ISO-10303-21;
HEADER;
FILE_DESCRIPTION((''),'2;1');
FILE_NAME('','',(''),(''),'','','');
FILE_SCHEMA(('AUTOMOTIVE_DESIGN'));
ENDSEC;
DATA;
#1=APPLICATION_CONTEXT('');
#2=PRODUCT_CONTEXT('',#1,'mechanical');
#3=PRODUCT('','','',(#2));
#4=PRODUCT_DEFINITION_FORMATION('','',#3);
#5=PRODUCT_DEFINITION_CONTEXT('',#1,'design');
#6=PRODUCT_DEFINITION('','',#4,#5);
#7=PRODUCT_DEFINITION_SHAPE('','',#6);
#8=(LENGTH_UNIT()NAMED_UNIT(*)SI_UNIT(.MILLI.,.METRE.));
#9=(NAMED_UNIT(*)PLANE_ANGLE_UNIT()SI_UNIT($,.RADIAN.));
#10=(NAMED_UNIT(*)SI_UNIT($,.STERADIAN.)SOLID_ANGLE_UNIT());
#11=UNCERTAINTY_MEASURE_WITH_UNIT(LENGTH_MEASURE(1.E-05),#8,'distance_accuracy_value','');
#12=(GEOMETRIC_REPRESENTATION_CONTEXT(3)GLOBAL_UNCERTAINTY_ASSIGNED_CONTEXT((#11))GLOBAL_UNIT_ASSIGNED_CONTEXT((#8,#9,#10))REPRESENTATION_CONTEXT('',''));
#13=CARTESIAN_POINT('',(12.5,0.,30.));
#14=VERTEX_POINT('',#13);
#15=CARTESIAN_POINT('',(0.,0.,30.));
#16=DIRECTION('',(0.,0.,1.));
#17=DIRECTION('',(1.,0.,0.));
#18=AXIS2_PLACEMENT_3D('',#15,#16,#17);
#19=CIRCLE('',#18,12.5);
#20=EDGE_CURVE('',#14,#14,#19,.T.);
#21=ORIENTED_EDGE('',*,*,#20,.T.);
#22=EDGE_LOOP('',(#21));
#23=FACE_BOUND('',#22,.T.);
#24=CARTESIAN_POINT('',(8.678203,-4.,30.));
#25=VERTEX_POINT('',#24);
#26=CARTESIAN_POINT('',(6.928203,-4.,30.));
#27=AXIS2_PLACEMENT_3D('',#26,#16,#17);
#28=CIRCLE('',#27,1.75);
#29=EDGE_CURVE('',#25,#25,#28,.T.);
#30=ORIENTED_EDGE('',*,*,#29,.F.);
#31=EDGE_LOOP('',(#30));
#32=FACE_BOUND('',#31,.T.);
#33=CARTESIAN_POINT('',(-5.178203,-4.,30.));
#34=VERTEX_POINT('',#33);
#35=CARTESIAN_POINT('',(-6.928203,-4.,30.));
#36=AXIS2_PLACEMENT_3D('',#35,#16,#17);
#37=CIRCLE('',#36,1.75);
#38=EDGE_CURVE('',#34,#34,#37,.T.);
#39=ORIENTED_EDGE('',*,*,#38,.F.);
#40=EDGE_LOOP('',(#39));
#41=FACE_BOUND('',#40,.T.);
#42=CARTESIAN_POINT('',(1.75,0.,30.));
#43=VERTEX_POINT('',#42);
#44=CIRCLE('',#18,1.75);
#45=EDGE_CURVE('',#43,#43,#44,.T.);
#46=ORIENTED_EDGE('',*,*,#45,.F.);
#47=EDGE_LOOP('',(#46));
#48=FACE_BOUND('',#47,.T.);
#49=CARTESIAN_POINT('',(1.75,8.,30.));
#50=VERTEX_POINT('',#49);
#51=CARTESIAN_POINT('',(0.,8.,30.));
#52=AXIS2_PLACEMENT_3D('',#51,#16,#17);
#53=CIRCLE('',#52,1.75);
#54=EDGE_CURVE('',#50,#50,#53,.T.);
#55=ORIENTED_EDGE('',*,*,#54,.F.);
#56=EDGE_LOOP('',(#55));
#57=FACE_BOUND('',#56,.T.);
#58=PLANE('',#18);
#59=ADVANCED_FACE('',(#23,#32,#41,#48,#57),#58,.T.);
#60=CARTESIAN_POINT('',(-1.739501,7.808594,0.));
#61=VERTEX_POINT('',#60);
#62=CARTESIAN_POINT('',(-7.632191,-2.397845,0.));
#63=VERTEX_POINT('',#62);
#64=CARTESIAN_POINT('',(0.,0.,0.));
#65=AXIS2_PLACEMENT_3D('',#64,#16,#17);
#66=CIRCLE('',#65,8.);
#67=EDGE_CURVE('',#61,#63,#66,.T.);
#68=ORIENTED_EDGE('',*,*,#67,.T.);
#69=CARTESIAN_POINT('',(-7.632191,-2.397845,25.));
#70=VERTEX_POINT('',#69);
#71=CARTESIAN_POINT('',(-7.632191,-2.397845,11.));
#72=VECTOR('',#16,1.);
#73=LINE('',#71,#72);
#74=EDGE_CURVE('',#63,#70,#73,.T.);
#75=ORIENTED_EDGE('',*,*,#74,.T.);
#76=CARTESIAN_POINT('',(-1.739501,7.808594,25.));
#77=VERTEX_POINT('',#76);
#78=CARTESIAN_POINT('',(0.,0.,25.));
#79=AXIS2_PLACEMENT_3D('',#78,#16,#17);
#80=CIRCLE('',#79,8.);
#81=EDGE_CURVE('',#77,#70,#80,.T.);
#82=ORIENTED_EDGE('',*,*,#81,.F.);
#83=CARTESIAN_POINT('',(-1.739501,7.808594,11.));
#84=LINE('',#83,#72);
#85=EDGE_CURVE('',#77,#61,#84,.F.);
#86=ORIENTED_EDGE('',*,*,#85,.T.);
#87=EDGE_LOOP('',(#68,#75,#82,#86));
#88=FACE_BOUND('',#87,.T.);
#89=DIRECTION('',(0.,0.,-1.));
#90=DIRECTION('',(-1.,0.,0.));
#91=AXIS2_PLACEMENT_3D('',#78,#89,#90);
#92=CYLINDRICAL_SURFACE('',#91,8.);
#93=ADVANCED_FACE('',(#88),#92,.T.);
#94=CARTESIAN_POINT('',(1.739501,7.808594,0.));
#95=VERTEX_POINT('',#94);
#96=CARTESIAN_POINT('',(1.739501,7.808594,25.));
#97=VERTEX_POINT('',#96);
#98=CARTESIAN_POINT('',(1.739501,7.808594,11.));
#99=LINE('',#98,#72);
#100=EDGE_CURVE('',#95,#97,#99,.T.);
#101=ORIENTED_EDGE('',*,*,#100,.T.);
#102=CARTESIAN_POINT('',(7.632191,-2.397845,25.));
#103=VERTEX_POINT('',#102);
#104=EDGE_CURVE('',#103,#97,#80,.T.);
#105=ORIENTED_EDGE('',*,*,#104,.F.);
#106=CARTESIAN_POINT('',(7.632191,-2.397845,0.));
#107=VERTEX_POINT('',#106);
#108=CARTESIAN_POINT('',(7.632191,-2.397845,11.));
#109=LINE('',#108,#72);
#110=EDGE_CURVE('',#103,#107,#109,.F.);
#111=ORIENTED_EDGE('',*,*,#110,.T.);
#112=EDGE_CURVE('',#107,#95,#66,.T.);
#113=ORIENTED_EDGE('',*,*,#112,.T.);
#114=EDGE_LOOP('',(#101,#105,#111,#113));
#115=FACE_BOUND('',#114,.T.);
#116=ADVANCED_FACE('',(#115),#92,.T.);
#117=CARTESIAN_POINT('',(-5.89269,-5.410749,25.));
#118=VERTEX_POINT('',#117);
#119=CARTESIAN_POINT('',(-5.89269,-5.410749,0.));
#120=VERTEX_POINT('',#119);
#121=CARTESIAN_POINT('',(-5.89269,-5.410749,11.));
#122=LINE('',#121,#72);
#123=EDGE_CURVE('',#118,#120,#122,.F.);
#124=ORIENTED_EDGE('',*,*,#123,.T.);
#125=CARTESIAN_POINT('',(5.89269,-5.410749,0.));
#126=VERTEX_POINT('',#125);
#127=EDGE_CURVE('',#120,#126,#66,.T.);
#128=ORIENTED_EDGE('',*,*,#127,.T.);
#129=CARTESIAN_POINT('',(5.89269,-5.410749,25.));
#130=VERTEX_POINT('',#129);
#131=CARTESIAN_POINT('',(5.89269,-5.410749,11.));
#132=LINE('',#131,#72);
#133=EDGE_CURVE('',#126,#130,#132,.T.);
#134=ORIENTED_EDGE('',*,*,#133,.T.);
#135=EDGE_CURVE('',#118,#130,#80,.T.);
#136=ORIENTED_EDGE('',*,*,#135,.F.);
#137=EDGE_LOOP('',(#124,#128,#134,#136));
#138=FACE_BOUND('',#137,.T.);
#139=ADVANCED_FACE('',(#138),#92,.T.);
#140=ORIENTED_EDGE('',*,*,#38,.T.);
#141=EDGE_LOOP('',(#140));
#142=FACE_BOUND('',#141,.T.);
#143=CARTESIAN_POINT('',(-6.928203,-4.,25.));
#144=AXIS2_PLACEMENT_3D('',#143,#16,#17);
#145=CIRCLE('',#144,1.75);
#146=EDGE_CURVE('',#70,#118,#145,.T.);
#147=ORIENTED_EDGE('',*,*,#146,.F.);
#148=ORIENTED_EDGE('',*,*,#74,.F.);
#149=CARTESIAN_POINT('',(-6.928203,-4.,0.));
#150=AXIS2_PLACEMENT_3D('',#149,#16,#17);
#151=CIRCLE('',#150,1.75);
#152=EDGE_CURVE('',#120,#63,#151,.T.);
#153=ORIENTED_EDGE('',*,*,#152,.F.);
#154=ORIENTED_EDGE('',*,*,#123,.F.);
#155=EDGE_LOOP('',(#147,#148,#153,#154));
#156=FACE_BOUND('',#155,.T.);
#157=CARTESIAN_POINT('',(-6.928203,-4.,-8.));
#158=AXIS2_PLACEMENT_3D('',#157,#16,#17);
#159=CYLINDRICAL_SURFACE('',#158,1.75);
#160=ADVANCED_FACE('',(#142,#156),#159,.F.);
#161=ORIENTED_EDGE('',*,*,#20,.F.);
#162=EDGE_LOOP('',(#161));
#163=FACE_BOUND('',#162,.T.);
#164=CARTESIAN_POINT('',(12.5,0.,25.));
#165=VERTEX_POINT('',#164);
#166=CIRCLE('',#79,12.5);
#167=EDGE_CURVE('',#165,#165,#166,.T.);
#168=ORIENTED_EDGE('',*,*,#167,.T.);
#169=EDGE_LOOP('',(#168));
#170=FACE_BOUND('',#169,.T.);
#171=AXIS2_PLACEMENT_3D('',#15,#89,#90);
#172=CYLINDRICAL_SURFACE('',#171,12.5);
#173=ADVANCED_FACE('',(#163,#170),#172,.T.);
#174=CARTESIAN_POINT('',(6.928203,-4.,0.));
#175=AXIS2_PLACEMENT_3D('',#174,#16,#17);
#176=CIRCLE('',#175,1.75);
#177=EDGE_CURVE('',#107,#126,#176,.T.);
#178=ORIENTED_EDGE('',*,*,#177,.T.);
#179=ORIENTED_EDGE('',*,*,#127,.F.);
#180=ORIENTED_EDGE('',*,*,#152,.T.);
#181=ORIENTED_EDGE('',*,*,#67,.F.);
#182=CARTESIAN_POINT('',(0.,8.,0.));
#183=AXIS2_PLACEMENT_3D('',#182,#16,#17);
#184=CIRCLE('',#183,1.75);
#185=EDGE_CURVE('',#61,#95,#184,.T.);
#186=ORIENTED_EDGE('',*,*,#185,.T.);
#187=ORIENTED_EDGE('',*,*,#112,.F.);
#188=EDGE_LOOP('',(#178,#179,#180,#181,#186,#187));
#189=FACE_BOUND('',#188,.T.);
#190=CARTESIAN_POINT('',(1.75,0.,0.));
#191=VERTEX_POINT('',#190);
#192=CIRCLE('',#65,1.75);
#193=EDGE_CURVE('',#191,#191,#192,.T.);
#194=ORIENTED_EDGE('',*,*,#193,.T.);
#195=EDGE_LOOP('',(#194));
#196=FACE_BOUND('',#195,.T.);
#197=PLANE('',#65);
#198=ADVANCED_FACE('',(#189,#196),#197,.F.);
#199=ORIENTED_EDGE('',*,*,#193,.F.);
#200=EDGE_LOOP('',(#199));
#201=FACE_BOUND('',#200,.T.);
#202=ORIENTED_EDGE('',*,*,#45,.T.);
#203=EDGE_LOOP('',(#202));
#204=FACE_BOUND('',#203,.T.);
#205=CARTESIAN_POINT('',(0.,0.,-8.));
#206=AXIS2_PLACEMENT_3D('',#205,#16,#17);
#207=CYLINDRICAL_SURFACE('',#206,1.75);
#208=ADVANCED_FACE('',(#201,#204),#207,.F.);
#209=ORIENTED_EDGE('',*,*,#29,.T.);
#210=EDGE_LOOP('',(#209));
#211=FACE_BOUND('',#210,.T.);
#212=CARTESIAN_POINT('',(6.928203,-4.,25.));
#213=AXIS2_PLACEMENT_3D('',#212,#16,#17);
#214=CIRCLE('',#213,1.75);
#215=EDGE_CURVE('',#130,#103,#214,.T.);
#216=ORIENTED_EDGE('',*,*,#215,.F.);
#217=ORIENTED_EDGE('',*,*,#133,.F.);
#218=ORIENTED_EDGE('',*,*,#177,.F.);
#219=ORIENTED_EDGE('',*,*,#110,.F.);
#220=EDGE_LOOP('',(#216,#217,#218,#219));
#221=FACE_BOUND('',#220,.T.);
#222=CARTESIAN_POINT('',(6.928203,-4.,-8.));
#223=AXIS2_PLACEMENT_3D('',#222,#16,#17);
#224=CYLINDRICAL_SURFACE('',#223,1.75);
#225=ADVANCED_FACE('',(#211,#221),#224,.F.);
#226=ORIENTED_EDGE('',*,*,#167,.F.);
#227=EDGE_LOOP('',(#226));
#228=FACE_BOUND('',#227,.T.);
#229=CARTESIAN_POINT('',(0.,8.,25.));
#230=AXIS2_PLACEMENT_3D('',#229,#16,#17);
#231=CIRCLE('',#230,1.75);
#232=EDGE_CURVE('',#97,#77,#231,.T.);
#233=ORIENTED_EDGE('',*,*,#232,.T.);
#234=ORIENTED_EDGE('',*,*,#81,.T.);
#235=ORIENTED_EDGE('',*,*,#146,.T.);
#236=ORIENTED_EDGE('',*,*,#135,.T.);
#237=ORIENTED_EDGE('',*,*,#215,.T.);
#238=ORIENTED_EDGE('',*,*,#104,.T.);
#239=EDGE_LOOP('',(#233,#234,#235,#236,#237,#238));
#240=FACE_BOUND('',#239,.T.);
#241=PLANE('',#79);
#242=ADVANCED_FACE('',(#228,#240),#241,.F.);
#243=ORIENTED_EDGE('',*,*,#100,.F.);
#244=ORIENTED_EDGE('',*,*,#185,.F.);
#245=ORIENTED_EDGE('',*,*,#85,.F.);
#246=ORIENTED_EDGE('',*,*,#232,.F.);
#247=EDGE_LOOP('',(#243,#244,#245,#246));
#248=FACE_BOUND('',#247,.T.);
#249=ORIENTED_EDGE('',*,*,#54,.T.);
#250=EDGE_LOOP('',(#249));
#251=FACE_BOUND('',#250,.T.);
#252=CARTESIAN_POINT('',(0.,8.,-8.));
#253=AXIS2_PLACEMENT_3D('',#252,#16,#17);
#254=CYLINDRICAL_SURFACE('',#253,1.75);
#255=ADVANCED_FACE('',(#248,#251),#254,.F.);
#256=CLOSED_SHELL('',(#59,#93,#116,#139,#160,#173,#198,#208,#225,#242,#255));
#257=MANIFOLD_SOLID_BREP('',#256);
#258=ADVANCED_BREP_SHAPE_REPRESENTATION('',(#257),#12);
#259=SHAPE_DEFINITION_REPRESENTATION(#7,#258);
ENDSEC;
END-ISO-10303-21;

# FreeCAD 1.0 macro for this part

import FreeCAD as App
import Part
import Sketcher
from FreeCAD import Vector
Q = App.Units.Quantity

doc = App.newDocument("Part")
params = doc.addObject("Spreadsheet::Sheet", "Params")
for row, (alias, value) in enumerate([
    ("sketch1_diameter", "16 mm"),
    ("pad1_length", "25 mm"),
    ("sketch2_diameter", "25 mm"),
    ("pad2_length", "5 mm"),
    ("sketch3_diameter", "3.5 mm"),
    ("pocket1_length", "38 mm"),
], start=1):
    params.set(f"A{row}", alias)
    params.set(f"B{row}", "=" + value)
    params.setAlias(f"B{row}", alias)

body = doc.addObject("PartDesign::Body", "Body")

sketch1 = body.newObject("Sketcher::SketchObject", "Sketch")
sketch1.AttachmentSupport = (doc.getObject("XY_Plane"), [""])
sketch1.MapMode = "FlatFace"
sketch1.addGeometry(Part.Circle(Vector(0, 0, 0), Vector(0, 0, 1), 8), False)
sketch1.addConstraint(Sketcher.Constraint("Coincident", 0, 3, -1, 1))
sketch1.addConstraint(Sketcher.Constraint("Diameter", 0, Q("16 mm")))
sketch1.setExpression("Constraints[1]", "Params.sketch1_diameter")
pad1 = body.newObject("PartDesign::Pad", "Pad")
pad1.Profile = sketch1
pad1.setExpression("Length", "Params.pad1_length")

sketch2 = body.newObject("Sketcher::SketchObject", "Sketch001")
sketch2.AttachmentSupport = (doc.getObject("XY_Plane"), [""])
sketch2.MapMode = "FlatFace"
sketch2.AttachmentOffset = App.Placement(Vector(0, 0, 25), App.Rotation())
sketch2.addGeometry(Part.Circle(Vector(0, 0, 0), Vector(0, 0, 1), 12), False)
sketch2.addConstraint(Sketcher.Constraint("Coincident", 0, 3, -1, 1))
sketch2.addConstraint(Sketcher.Constraint("Diameter", 0, Q("25 mm")))
sketch2.setExpression("Constraints[1]", "Params.sketch2_diameter")
pad2 = body.newObject("PartDesign::Pad", "Pad001")
pad2.Profile = sketch2
pad2.setExpression("Length", "Params.pad2_length")

sketch3 = body.newObject("Sketcher::SketchObject", "Sketch002")
sketch3.AttachmentSupport = (doc.getObject("XY_Plane"), [""])
sketch3.MapMode = "FlatFace"
sketch3.AttachmentOffset = App.Placement(Vector(0, 0, 30), App.Rotation())
sketch3.addGeometry(Part.Circle(Vector(0, 0, 0), Vector(0, 0, 1), 1.8), False)
sketch3.addGeometry(Part.Circle(Vector(0, 8, 0), Vector(0, 0, 1), 1.8), False)
sketch3.addGeometry(Part.Circle(Vector(-6.9, -4, 0), Vector(0, 0, 1), 1.8), False)
sketch3.addGeometry(Part.Circle(Vector(6.9, -4, 0), Vector(0, 0, 1), 1.8), False)
sketch3.addConstraint(Sketcher.Constraint("Coincident", 0, 3, -1, 1))
sketch3.addConstraint(Sketcher.Constraint("Equal", 0, 1))
sketch3.addConstraint(Sketcher.Constraint("Equal", 1, 2))
sketch3.addConstraint(Sketcher.Constraint("Equal", 2, 3))
sketch3.addConstraint(Sketcher.Constraint("Symmetric", 2, 3, 3, 3, -2))
sketch3.addConstraint(Sketcher.Constraint("PointOnObject", 1, 3, -2))
sketch3.addConstraint(Sketcher.Constraint("Diameter", 0, Q("3.5 mm")))
sketch3.addConstraint(Sketcher.Constraint("DistanceY", -1, 1, 1, 3, Q("8 mm")))
sketch3.addConstraint(Sketcher.Constraint("DistanceY", 2, 3, -1, 1, Q("4 mm")))
sketch3.addConstraint(Sketcher.Constraint("DistanceX", 2, 3, -1, 1, Q("6.928203 mm")))
sketch3.setExpression("Constraints[6]", "Params.sketch3_diameter")
pocket1 = body.newObject("PartDesign::Pocket", "Pocket")
pocket1.Profile = sketch3
pocket1.setExpression("Length", "Params.pocket1_length")

doc.recompute()
